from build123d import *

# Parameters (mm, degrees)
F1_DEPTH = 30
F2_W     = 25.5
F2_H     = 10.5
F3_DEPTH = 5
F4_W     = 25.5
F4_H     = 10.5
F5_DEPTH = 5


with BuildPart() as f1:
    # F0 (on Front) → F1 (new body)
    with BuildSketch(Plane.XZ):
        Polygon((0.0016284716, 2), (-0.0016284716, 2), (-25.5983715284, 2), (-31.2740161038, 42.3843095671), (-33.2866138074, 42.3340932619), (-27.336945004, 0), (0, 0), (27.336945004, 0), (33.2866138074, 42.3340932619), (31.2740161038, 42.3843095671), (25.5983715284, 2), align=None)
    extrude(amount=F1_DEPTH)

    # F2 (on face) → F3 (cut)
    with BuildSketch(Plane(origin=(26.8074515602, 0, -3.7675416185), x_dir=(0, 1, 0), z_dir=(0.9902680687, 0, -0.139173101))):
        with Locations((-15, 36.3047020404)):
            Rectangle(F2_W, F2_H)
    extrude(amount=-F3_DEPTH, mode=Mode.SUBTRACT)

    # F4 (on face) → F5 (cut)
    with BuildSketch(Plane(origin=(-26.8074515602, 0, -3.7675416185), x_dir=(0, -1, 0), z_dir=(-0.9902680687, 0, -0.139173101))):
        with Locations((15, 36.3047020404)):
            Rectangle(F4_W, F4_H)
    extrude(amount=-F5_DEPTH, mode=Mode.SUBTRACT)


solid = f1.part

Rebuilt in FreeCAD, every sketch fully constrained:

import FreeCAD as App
import Part
import Sketcher
from FreeCAD import Vector
Q = App.Units.Quantity

doc = App.newDocument("Part")
body = doc.addObject("PartDesign::Body", "Body")

# Sketch on XZ plane
sketch1 = doc.addObject("Sketcher::SketchObject", "Sketch")
body.addObject(sketch1)
sketch1.AttachmentSupport = (doc.XZ_Plane, [""])
sketch1.MapMode = "FlatFace"
sketch1.addGeometry([
    Part.LineSegment(Vector(-25.598372, 2, 0), Vector(-31.274016, 42.38431, 0)),  # 0
    Part.LineSegment(Vector(-31.274016, 42.38431, 0), Vector(-33.286614, 42.334093, 0)),  # 1
    Part.LineSegment(Vector(-33.286614, 42.334093, 0), Vector(-27.336945, 0, 0)),  # 2
    Part.LineSegment(Vector(-27.336945, 0, 0), Vector(27.336945, 0, 0)),  # 3
    Part.LineSegment(Vector(27.336945, 0, 0), Vector(33.286614, 42.334093, 0)),  # 4
    Part.LineSegment(Vector(33.286614, 42.334093, 0), Vector(31.274016, 42.38431, 0)),  # 5
    Part.LineSegment(Vector(31.274016, 42.38431, 0), Vector(25.598372, 2, 0)),  # 6
    Part.LineSegment(Vector(25.598372, 2, 0), Vector(-25.598372, 2, 0)),  # 7
], False)
sketch1.addConstraint([
    Sketcher.Constraint("Coincident", 0, 2, 1, 1),
    Sketcher.Constraint("Coincident", 1, 2, 2, 1),
    Sketcher.Constraint("Coincident", 2, 2, 3, 1),
    Sketcher.Constraint("Coincident", 3, 2, 4, 1),
    Sketcher.Constraint("Coincident", 4, 2, 5, 1),
    Sketcher.Constraint("Coincident", 5, 2, 6, 1),
    Sketcher.Constraint("Coincident", 6, 2, 7, 1),
    Sketcher.Constraint("Coincident", 7, 2, 0, 1),
    Sketcher.Constraint("Horizontal", 3),
    Sketcher.Constraint("Horizontal", 7),
    Sketcher.Constraint("Symmetric", 2, 2, 3, 2, -1, 1),
    Sketcher.Constraint("Symmetric", 1, 2, 4, 2, -2),
    Sketcher.Constraint("Symmetric", 0, 2, 5, 2, -2),
    Sketcher.Constraint("Parallel", 0, 2),
    Sketcher.Constraint("Parallel", 4, 6),
    Sketcher.Constraint("Angle", 0, Q("98 deg")),
    Sketcher.Constraint("DistanceY", -1, 1, 6, 2, 2.0),
    Sketcher.Constraint("DistanceX", 3, 1, 3, 2, 54.67389),
    Sketcher.Constraint("Distance", 0, 40.781189),
    Sketcher.Constraint("DistanceX", 7, 2, 7, 1, 51.196743),
    Sketcher.Constraint("DistanceX", 1, 2, 2, 2, 5.949669),
])
pad1 = doc.addObject("PartDesign::Pad", "Pad")
body.addObject(pad1)
pad1.Profile = sketch1
pad1.Length = 30

# Sketch on an angled plane
sketch2 = doc.addObject("Sketcher::SketchObject", "Sketch001")
body.addObject(sketch2)
sketch2.Placement = App.Placement(Vector(26.807452, 0, -3.767542), App.Rotation(Vector(0, 1, 0), Vector(0.139173101, 0, 0.990268069), Vector(0.990268069, 0, -0.139173101), "ZXY"))
sketch2.addGeometry([
    Part.LineSegment(Vector(-27.75, 41.554702, 0), Vector(-27.75, 31.054702, 0)),
    Part.LineSegment(Vector(-27.75, 31.054702, 0), Vector(-2.25, 31.054702, 0)),
    Part.LineSegment(Vector(-2.25, 31.054702, 0), Vector(-2.25, 41.554702, 0)),
    Part.LineSegment(Vector(-2.25, 41.554702, 0), Vector(-27.75, 41.554702, 0)),
], False)
sketch2.addConstraint([
    Sketcher.Constraint("Coincident", 0, 2, 1, 1),
    Sketcher.Constraint("Coincident", 1, 2, 2, 1),
    Sketcher.Constraint("Coincident", 2, 2, 3, 1),
    Sketcher.Constraint("Coincident", 3, 2, 0, 1),
    Sketcher.Constraint("Vertical", 0),
    Sketcher.Constraint("Horizontal", 1),
    Sketcher.Constraint("Vertical", 2),
    Sketcher.Constraint("Horizontal", 3),
    Sketcher.Constraint("DistanceX", 1, 1, 1, 2, 25.5),
    Sketcher.Constraint("DistanceY", 0, 2, 0, 1, 10.5),
    Sketcher.Constraint("DistanceX", 0, 2, -1, 1, 27.75),
    Sketcher.Constraint("DistanceY", -1, 1, 0, 2, 31.054702),
])
pocket1 = doc.addObject("PartDesign::Pocket", "Pocket")
body.addObject(pocket1)
pocket1.Profile = sketch2
pocket1.Length = 5

# Sketch on an angled plane
sketch3 = doc.addObject("Sketcher::SketchObject", "Sketch002")
body.addObject(sketch3)
sketch3.Placement = App.Placement(Vector(-26.807452, 0, -3.767542), App.Rotation(Vector(0, -1, 0), Vector(-0.139173101, 0, 0.990268069), Vector(-0.990268069, 0, -0.139173101), "ZXY"))
sketch3.addGeometry([
    Part.LineSegment(Vector(2.25, 41.554702, 0), Vector(2.25, 31.054702, 0)),
    Part.LineSegment(Vector(2.25, 31.054702, 0), Vector(27.75, 31.054702, 0)),
    Part.LineSegment(Vector(27.75, 31.054702, 0), Vector(27.75, 41.554702, 0)),
    Part.LineSegment(Vector(27.75, 41.554702, 0), Vector(2.25, 41.554702, 0)),
], False)
sketch3.addConstraint([
    Sketcher.Constraint("Coincident", 0, 2, 1, 1),
    Sketcher.Constraint("Coincident", 1, 2, 2, 1),
    Sketcher.Constraint("Coincident", 2, 2, 3, 1),
    Sketcher.Constraint("Coincident", 3, 2, 0, 1),
    Sketcher.Constraint("Vertical", 0),
    Sketcher.Constraint("Horizontal", 1),
    Sketcher.Constraint("Vertical", 2),
    Sketcher.Constraint("Horizontal", 3),
    Sketcher.Constraint("DistanceX", 1, 1, 1, 2, 25.5),
    Sketcher.Constraint("DistanceY", 0, 2, 0, 1, 10.5),
    Sketcher.Constraint("DistanceX", -1, 1, 0, 2, 2.25),
    Sketcher.Constraint("DistanceY", -1, 1, 0, 2, 31.054702),
])
pocket2 = doc.addObject("PartDesign::Pocket", "Pocket001")
body.addObject(pocket2)
pocket2.Profile = sketch3
pocket2.Length = 5

doc.recompute()
